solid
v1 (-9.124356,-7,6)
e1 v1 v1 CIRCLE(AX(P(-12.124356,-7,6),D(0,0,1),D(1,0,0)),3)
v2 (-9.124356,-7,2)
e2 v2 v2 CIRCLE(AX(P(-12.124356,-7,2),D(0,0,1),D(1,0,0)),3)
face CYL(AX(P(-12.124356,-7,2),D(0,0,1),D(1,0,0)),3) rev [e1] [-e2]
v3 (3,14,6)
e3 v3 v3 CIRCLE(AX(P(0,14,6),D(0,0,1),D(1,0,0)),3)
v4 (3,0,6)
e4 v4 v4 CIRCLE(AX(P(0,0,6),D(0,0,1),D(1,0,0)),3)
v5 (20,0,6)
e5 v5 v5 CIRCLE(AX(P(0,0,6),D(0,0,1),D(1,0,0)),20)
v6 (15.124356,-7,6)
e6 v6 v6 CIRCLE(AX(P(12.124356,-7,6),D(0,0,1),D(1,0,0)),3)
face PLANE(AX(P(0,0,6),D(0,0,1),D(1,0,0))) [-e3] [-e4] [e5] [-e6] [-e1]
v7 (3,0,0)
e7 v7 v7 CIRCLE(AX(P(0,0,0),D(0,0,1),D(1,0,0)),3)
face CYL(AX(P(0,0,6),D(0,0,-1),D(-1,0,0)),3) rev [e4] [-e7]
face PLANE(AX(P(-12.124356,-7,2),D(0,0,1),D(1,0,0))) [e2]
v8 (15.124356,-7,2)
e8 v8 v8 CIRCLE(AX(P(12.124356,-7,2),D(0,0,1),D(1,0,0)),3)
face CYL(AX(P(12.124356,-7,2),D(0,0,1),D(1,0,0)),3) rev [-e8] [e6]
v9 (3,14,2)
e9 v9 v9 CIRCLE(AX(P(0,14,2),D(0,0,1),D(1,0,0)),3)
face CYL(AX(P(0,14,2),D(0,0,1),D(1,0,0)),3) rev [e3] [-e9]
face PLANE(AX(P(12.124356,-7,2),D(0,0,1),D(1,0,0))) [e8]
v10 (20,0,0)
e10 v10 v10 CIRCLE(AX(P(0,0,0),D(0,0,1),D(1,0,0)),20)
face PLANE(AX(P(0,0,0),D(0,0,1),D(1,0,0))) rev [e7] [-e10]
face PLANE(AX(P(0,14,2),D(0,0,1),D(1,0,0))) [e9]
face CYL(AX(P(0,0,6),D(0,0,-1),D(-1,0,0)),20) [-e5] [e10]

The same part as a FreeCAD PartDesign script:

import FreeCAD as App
import Part
import Sketcher
from FreeCAD import Vector

doc = App.newDocument("Part")
body = doc.addObject("PartDesign::Body", "Body")

sketch1 = doc.addObject("Sketcher::SketchObject", "Sketch")
body.addObject(sketch1)
sketch1.AttachmentSupport = (doc.XY_Plane, [""])
sketch1.MapMode = "FlatFace"
sketch1.addGeometry([
    Part.Circle(Vector(0, 0, 0), Vector(0, 0, 1), 20),
    Part.Circle(Vector(0, 0, 0), Vector(0, 0, 1), 3),
], False)
sketch1.addConstraint([
    Sketcher.Constraint("Coincident", 0, 3, -1, 1),
    Sketcher.Constraint("Coincident", 1, 3, -1, 1),
    Sketcher.Constraint("Diameter", 0, 40.0),
    Sketcher.Constraint("Diameter", 1, 6.0),
])
pad1 = doc.addObject("PartDesign::Pad", "Pad")
body.addObject(pad1)
pad1.Profile = sketch1
pad1.Length = 6

sketch2 = doc.addObject("Sketcher::SketchObject", "Sketch001")
body.addObject(sketch2)
sketch2.AttachmentSupport = (doc.XY_Plane, [""])
sketch2.MapMode = "FlatFace"
sketch2.AttachmentOffset = App.Placement(Vector(0, 0, 6), App.Rotation())
sketch2.addGeometry([
    Part.Circle(Vector(0, 14, 0), Vector(0, 0, 1), 3),
    Part.Circle(Vector(12.124356, -7, 0), Vector(0, 0, 1), 3),
    Part.Circle(Vector(-12.124356, -7, 0), Vector(0, 0, 1), 3),
], False)
sketch2.addConstraint([
    Sketcher.Constraint("Equal", 0, 1),
    Sketcher.Constraint("Equal", 1, 2),
    Sketcher.Constraint("Symmetric", 1, 3, 2, 3, -2),
    Sketcher.Constraint("PointOnObject", 0, 3, -2),
    Sketcher.Constraint("Diameter", 0, 6.0),
    Sketcher.Constraint("DistanceY", -1, 1, 0, 3, 14.0),
    Sketcher.Constraint("DistanceY", 1, 3, -1, 1, 7.0),
    Sketcher.Constraint("DistanceX", 2, 3, 1, 3, 24.248711),
])
pocket1 = doc.addObject("PartDesign::Pocket", "Pocket")
body.addObject(pocket1)
pocket1.Profile = sketch2
pocket1.Length = 4

doc.recompute()
